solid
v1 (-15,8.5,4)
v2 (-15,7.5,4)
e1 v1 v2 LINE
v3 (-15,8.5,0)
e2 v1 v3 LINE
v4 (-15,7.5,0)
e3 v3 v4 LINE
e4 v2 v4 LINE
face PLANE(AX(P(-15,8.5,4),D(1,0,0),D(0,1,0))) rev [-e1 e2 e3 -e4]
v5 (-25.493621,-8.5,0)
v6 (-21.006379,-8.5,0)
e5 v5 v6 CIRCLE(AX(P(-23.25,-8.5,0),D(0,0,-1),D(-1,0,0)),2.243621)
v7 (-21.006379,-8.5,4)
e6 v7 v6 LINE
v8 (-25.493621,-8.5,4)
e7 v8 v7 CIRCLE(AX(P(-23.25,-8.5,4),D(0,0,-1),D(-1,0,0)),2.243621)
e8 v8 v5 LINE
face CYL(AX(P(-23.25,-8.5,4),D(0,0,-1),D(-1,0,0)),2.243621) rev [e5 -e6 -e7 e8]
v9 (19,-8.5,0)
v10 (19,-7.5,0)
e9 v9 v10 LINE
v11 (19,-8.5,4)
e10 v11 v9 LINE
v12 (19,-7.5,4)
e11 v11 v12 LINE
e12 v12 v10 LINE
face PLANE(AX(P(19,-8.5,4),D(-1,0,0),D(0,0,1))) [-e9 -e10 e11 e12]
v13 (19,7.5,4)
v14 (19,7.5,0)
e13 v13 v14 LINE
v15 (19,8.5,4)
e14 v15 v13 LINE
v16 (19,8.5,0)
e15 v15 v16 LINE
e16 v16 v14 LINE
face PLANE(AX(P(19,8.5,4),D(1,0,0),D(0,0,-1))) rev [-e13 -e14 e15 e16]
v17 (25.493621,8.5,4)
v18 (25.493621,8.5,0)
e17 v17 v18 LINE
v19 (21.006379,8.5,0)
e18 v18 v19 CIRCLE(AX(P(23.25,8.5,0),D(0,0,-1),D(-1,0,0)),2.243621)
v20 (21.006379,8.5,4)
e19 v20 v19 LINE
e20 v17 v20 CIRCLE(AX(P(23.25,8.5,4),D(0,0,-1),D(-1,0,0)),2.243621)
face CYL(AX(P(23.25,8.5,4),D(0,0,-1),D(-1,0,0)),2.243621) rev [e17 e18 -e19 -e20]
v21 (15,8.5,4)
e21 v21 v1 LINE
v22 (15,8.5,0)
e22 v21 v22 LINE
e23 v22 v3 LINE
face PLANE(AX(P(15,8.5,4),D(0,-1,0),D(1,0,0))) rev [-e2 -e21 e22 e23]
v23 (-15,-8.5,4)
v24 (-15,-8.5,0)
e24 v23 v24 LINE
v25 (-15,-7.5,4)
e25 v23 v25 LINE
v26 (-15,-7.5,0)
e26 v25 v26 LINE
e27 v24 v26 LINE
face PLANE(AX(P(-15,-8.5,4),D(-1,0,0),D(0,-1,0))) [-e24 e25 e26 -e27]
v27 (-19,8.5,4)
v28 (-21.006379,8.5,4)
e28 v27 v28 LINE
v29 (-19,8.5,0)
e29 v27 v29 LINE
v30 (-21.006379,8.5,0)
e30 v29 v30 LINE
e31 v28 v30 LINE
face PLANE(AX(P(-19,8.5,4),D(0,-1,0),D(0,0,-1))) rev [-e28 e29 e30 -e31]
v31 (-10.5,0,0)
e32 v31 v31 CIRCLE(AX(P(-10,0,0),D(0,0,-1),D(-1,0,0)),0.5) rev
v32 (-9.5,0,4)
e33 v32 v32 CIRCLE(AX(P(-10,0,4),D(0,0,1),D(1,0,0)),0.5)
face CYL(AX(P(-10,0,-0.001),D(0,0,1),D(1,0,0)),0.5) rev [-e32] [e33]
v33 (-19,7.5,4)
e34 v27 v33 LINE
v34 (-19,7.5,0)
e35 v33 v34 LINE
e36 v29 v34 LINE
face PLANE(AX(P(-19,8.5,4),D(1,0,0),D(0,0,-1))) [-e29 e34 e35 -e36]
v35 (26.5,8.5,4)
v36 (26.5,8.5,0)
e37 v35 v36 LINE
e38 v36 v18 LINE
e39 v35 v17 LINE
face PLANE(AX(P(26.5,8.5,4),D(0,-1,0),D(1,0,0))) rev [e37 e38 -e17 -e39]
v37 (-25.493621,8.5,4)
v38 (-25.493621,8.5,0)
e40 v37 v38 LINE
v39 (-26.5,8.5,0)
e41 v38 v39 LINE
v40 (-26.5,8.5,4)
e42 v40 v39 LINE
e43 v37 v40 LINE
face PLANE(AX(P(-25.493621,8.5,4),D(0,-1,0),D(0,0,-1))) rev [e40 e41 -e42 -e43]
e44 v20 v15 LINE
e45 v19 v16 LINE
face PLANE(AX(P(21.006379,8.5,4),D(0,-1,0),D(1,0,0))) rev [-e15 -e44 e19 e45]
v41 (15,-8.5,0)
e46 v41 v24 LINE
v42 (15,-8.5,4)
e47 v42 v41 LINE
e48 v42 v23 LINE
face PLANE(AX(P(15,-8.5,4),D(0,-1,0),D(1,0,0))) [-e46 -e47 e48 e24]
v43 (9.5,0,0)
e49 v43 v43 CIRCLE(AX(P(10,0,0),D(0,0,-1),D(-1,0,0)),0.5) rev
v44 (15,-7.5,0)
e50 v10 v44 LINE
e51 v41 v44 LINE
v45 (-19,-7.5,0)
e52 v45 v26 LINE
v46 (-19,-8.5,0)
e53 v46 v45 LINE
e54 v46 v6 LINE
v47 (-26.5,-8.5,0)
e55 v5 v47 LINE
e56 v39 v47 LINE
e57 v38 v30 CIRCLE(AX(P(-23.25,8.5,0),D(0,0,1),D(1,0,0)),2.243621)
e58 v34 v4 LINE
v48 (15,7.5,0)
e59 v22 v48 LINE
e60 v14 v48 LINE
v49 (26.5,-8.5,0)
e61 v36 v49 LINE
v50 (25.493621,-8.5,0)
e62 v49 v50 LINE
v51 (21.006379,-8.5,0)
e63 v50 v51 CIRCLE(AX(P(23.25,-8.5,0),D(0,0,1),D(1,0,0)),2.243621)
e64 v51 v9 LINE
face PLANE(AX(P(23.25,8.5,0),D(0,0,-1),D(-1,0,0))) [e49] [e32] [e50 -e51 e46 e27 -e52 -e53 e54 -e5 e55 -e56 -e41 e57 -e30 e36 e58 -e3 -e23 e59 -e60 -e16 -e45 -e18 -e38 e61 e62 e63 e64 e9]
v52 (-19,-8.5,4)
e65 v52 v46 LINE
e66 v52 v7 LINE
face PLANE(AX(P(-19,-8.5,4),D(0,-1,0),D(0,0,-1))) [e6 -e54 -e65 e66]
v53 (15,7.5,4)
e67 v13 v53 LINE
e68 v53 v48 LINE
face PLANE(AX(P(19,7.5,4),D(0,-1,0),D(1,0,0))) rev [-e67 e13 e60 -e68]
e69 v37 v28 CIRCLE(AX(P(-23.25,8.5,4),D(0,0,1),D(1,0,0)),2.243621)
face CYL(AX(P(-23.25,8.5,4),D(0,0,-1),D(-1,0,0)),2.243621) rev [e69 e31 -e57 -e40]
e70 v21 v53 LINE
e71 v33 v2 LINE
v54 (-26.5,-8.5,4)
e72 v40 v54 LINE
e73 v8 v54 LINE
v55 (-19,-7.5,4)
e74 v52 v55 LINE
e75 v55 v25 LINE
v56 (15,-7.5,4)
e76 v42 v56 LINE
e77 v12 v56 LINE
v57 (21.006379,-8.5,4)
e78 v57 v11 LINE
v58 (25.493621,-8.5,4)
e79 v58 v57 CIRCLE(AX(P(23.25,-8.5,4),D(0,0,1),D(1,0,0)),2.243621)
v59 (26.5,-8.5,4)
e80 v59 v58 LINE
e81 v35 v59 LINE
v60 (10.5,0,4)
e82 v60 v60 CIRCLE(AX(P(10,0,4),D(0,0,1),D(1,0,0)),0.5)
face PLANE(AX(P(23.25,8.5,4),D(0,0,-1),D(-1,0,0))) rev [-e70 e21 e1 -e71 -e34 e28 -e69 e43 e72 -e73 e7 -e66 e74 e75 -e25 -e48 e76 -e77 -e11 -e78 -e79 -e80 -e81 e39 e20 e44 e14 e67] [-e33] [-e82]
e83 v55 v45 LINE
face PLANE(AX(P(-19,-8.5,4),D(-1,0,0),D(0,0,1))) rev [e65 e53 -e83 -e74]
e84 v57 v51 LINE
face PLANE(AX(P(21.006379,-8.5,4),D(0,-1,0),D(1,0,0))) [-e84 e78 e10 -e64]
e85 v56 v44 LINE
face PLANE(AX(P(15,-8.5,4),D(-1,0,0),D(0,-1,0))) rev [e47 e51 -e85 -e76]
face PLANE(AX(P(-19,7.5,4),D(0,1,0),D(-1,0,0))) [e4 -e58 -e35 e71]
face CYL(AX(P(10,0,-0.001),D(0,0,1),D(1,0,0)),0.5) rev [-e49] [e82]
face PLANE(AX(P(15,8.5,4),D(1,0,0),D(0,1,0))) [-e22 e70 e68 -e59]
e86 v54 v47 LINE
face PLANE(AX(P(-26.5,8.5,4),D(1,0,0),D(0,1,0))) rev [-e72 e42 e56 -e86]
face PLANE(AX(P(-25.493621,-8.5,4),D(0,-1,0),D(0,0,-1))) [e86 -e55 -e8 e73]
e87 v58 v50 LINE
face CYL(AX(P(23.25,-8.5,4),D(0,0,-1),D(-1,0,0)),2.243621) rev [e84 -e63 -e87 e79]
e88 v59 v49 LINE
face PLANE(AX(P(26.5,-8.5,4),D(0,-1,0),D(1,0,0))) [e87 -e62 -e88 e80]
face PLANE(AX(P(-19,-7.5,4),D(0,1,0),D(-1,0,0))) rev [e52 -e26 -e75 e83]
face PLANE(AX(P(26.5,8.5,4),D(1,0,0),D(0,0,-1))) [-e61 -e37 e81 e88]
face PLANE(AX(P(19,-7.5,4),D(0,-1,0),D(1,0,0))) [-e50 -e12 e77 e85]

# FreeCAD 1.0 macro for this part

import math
import FreeCAD as App
import Part
import Sketcher

V = App.Vector
Q = App.Units.Quantity

doc = App.newDocument("Part")
params = doc.addObject("Spreadsheet::Sheet", "Params")
for row, (alias, value) in enumerate([
    ("sketch1_width", "4 mm"),
    ("sketch1_width2", "30 mm"),
    ("sketch1_height", "1 mm"),
    ("sketch1_height2", "17 mm"),
    ("pad1_length", "4 mm"),
    ("sketch2_diameter", "1 mm"),
    ("sketch3_diameter", "1 mm"),
], start=1):
    params.set(f"A{row}", alias)
    params.set(f"B{row}", "=" + value)
    params.setAlias(f"B{row}", alias)

body = doc.addObject("PartDesign::Body", "Body")

sketch1 = body.newObject("Sketcher::SketchObject", "Sketch")
sketch1.AttachmentSupport = (doc.getObject("XY_Plane"), [""])
sketch1.MapMode = "FlatFace"
sketch1.addGeometry([
    Part.LineSegment(V(26.5, 8.5, 0), V(25.5, 8.5, 0)),
    Part.ArcOfCircle(Part.Circle(V(23.2, 8.5, 0), V(0, 0, 1), 2.2), math.radians(180), math.radians(360)),
    Part.LineSegment(V(21, 8.5, 0), V(19, 8.5, 0)),
    Part.LineSegment(V(19, 8.5, 0), V(19, 7.5, 0)),
    Part.LineSegment(V(19, 7.5, 0), V(15, 7.5, 0)),
    Part.LineSegment(V(15, 7.5, 0), V(15, 8.5, 0)),
    Part.LineSegment(V(15, 8.5, 0), V(-15, 8.5, 0)),
    Part.LineSegment(V(-15, 8.5, 0), V(-15, 7.5, 0)),
    Part.LineSegment(V(-15, 7.5, 0), V(-19, 7.5, 0)),
    Part.LineSegment(V(-19, 7.5, 0), V(-19, 8.5, 0)),
    Part.LineSegment(V(-19, 8.5, 0), V(-21, 8.5, 0)),
    Part.ArcOfCircle(Part.Circle(V(-23.2, 8.5, 0), V(0, 0, 1), 2.2), math.radians(180), math.radians(360)),
    Part.LineSegment(V(-25.5, 8.5, 0), V(-26.5, 8.5, 0)),
    Part.LineSegment(V(-26.5, 8.5, 0), V(-26.5, -8.5, 0)),
    Part.LineSegment(V(-26.5, -8.5, 0), V(-25.5, -8.5, 0)),
    Part.ArcOfCircle(Part.Circle(V(-23.2, -8.5, 0), V(0, 0, 1), 2.2), math.radians(0), math.radians(180)),
    Part.LineSegment(V(-21, -8.5, 0), V(-19, -8.5, 0)),
    Part.LineSegment(V(-19, -8.5, 0), V(-19, -7.5, 0)),
    Part.LineSegment(V(-19, -7.5, 0), V(-15, -7.5, 0)),
    Part.LineSegment(V(-15, -7.5, 0), V(-15, -8.5, 0)),
    Part.LineSegment(V(-15, -8.5, 0), V(15, -8.5, 0)),
    Part.LineSegment(V(15, -8.5, 0), V(15, -7.5, 0)),
    Part.LineSegment(V(15, -7.5, 0), V(19, -7.5, 0)),
    Part.LineSegment(V(19, -7.5, 0), V(19, -8.5, 0)),
    Part.LineSegment(V(19, -8.5, 0), V(21, -8.5, 0)),
    Part.ArcOfCircle(Part.Circle(V(23.2, -8.5, 0), V(0, 0, 1), 2.2), math.radians(0), math.radians(180)),
    Part.LineSegment(V(25.5, -8.5, 0), V(26.5, -8.5, 0)),
    Part.LineSegment(V(26.5, -8.5, 0), V(26.5, 8.5, 0)),
], False)
sketch1.addConstraint([
    Sketcher.Constraint("Coincident", 0, 2, 1, 2),
    Sketcher.Constraint("Coincident", 1, 1, 2, 1),
    Sketcher.Constraint("Coincident", 2, 2, 3, 1),
    Sketcher.Constraint("Coincident", 3, 2, 4, 1),
    Sketcher.Constraint("Coincident", 4, 2, 5, 1),
    Sketcher.Constraint("Coincident", 5, 2, 6, 1),
    Sketcher.Constraint("Coincident", 6, 2, 7, 1),
    Sketcher.Constraint("Coincident", 7, 2, 8, 1),
    Sketcher.Constraint("Coincident", 8, 2, 9, 1),
    Sketcher.Constraint("Coincident", 9, 2, 10, 1),
    Sketcher.Constraint("Coincident", 10, 2, 11, 2),
    Sketcher.Constraint("Coincident", 11, 1, 12, 1),
    Sketcher.Constraint("Coincident", 12, 2, 13, 1),
    Sketcher.Constraint("Coincident", 13, 2, 14, 1),
    Sketcher.Constraint("Coincident", 14, 2, 15, 2),
    Sketcher.Constraint("Coincident", 15, 1, 16, 1),
    Sketcher.Constraint("Coincident", 16, 2, 17, 1),
    Sketcher.Constraint("Coincident", 17, 2, 18, 1),
    Sketcher.Constraint("Coincident", 18, 2, 19, 1),
    Sketcher.Constraint("Coincident", 19, 2, 20, 1),
    Sketcher.Constraint("Coincident", 20, 2, 21, 1),
    Sketcher.Constraint("Coincident", 21, 2, 22, 1),
    Sketcher.Constraint("Coincident", 22, 2, 23, 1),
    Sketcher.Constraint("Coincident", 23, 2, 24, 1),
    Sketcher.Constraint("Coincident", 24, 2, 25, 2),
    Sketcher.Constraint("Coincident", 25, 1, 26, 1),
    Sketcher.Constraint("Coincident", 26, 2, 27, 1),
    Sketcher.Constraint("Coincident", 27, 2, 0, 1),
    Sketcher.Constraint("Horizontal", 0),
    Sketcher.Constraint("Horizontal", 2),
    Sketcher.Constraint("Vertical", 3),
    Sketcher.Constraint("Horizontal", 4),
    Sketcher.Constraint("Vertical", 5),
    Sketcher.Constraint("Horizontal", 6),
    Sketcher.Constraint("Vertical", 7),
    Sketcher.Constraint("Horizontal", 8),
    Sketcher.Constraint("Vertical", 9),
    Sketcher.Constraint("Horizontal", 10),
    Sketcher.Constraint("Horizontal", 12),
    Sketcher.Constraint("Vertical", 13),
    Sketcher.Constraint("Horizontal", 14),
    Sketcher.Constraint("Horizontal", 16),
    Sketcher.Constraint("Vertical", 17),
    Sketcher.Constraint("Horizontal", 18),
    Sketcher.Constraint("Vertical", 19),
    Sketcher.Constraint("Horizontal", 20),
    Sketcher.Constraint("Vertical", 21),
    Sketcher.Constraint("Horizontal", 22),
    Sketcher.Constraint("Vertical", 23),
    Sketcher.Constraint("Horizontal", 24),
    Sketcher.Constraint("Horizontal", 26),
    Sketcher.Constraint("Vertical", 27),
    Sketcher.Constraint("Equal", 1, 11),
    Sketcher.Constraint("Equal", 11, 15),
    Sketcher.Constraint("Equal", 15, 25),
    Sketcher.Constraint("Symmetric", 1, 3, 15, 3, -1, 1),
    Sketcher.Constraint("Symmetric", 11, 3, 25, 3, -1, 1),
    Sketcher.Constraint("Symmetric", 2, 2, 16, 2, -1, 1),
    Sketcher.Constraint("Symmetric", 4, 2, 18, 2, -1, 1),
    Sketcher.Constraint("Symmetric", 6, 2, 20, 2, -1, 1),
    Sketcher.Constraint("Symmetric", 8, 2, 22, 2, -1, 1),
    Sketcher.Constraint("Symmetric", 12, 2, 26, 2, -1, 1),
    Sketcher.Constraint("Symmetric", 1, 3, 11, 3, -2),
    Sketcher.Constraint("Symmetric", 4, 2, 7, 2, -2),
    Sketcher.Constraint("Symmetric", 2, 2, 9, 2, -2),
    Sketcher.Constraint("Horizontal", 11, 3, 0, 2),
    Sketcher.Constraint("Horizontal", 0, 2, 1, 1),
    Sketcher.Constraint("Horizontal", 2, 2, 5, 2),
    Sketcher.Constraint("Horizontal", 10, 2, 11, 1),
    Sketcher.Constraint("Horizontal", 25, 3, 13, 2),
    Sketcher.Constraint("Horizontal", 20, 2, 23, 2),
    Sketcher.Constraint("DistanceX", 4, 2, 4, 1, Q("4 mm")),
    Sketcher.Constraint("DistanceX", 6, 2, 6, 1, Q("30 mm")),
    Sketcher.Constraint("DistanceY", 3, 2, 3, 1, Q("1 mm")),
    Sketcher.Constraint("DistanceY", 13, 2, 13, 1, Q("17 mm")),
    Sketcher.Constraint("DistanceX", 12, 2, -1, 1, Q("26.5 mm")),
    Sketcher.Constraint("DistanceX", 11, 3, 1, 3, Q("46.5 mm")),
    Sketcher.Constraint("Radius", 1, Q("2.243621 mm")),
])
sketch1.setExpression("Constraints[71]", "Params.sketch1_width")
sketch1.setExpression("Constraints[72]", "Params.sketch1_width2")
sketch1.setExpression("Constraints[73]", "Params.sketch1_height")
sketch1.setExpression("Constraints[74]", "Params.sketch1_height2")
pad1 = body.newObject("PartDesign::Pad", "Pad")
pad1.Profile = sketch1
pad1.setExpression("Length", "Params.pad1_length")

sketch2 = body.newObject("Sketcher::SketchObject", "Sketch001")
sketch2.AttachmentSupport = (doc.getObject("XY_Plane"), [""])
sketch2.MapMode = "FlatFace"
sketch2.AttachmentOffset = App.Placement(V(0, 0, 4), App.Rotation())
sketch2.addGeometry(Part.Circle(V(-10, 0, 0), V(0, 0, 1), 0.5), False)
sketch2.addConstraint([
    Sketcher.Constraint("PointOnObject", 0, 3, -1),
    Sketcher.Constraint("Diameter", 0, Q("1 mm")),
    Sketcher.Constraint("DistanceX", 0, 3, -1, 1, Q("10 mm")),
])
sketch2.setExpression("Constraints[1]", "Params.sketch2_diameter")
pocket1 = body.newObject("PartDesign::Pocket", "Pocket")
pocket1.Profile = sketch2
pocket1.Type = "UpToFirst"

sketch3 = body.newObject("Sketcher::SketchObject", "Sketch002")
sketch3.AttachmentSupport = (doc.getObject("XY_Plane"), [""])
sketch3.MapMode = "FlatFace"
sketch3.AttachmentOffset = App.Placement(V(0, 0, 4), App.Rotation())
sketch3.addGeometry(Part.Circle(V(10, 0, 0), V(0, 0, 1), 0.5), False)
sketch3.addConstraint([
    Sketcher.Constraint("PointOnObject", 0, 3, -1),
    Sketcher.Constraint("Diameter", 0, Q("1 mm")),
    Sketcher.Constraint("DistanceX", -1, 1, 0, 3, Q("10 mm")),
])
sketch3.setExpression("Constraints[1]", "Params.sketch3_diameter")
pocket2 = body.newObject("PartDesign::Pocket", "Pocket001")
pocket2.Profile = sketch3
pocket2.Type = "UpToFirst"

doc.recompute()
